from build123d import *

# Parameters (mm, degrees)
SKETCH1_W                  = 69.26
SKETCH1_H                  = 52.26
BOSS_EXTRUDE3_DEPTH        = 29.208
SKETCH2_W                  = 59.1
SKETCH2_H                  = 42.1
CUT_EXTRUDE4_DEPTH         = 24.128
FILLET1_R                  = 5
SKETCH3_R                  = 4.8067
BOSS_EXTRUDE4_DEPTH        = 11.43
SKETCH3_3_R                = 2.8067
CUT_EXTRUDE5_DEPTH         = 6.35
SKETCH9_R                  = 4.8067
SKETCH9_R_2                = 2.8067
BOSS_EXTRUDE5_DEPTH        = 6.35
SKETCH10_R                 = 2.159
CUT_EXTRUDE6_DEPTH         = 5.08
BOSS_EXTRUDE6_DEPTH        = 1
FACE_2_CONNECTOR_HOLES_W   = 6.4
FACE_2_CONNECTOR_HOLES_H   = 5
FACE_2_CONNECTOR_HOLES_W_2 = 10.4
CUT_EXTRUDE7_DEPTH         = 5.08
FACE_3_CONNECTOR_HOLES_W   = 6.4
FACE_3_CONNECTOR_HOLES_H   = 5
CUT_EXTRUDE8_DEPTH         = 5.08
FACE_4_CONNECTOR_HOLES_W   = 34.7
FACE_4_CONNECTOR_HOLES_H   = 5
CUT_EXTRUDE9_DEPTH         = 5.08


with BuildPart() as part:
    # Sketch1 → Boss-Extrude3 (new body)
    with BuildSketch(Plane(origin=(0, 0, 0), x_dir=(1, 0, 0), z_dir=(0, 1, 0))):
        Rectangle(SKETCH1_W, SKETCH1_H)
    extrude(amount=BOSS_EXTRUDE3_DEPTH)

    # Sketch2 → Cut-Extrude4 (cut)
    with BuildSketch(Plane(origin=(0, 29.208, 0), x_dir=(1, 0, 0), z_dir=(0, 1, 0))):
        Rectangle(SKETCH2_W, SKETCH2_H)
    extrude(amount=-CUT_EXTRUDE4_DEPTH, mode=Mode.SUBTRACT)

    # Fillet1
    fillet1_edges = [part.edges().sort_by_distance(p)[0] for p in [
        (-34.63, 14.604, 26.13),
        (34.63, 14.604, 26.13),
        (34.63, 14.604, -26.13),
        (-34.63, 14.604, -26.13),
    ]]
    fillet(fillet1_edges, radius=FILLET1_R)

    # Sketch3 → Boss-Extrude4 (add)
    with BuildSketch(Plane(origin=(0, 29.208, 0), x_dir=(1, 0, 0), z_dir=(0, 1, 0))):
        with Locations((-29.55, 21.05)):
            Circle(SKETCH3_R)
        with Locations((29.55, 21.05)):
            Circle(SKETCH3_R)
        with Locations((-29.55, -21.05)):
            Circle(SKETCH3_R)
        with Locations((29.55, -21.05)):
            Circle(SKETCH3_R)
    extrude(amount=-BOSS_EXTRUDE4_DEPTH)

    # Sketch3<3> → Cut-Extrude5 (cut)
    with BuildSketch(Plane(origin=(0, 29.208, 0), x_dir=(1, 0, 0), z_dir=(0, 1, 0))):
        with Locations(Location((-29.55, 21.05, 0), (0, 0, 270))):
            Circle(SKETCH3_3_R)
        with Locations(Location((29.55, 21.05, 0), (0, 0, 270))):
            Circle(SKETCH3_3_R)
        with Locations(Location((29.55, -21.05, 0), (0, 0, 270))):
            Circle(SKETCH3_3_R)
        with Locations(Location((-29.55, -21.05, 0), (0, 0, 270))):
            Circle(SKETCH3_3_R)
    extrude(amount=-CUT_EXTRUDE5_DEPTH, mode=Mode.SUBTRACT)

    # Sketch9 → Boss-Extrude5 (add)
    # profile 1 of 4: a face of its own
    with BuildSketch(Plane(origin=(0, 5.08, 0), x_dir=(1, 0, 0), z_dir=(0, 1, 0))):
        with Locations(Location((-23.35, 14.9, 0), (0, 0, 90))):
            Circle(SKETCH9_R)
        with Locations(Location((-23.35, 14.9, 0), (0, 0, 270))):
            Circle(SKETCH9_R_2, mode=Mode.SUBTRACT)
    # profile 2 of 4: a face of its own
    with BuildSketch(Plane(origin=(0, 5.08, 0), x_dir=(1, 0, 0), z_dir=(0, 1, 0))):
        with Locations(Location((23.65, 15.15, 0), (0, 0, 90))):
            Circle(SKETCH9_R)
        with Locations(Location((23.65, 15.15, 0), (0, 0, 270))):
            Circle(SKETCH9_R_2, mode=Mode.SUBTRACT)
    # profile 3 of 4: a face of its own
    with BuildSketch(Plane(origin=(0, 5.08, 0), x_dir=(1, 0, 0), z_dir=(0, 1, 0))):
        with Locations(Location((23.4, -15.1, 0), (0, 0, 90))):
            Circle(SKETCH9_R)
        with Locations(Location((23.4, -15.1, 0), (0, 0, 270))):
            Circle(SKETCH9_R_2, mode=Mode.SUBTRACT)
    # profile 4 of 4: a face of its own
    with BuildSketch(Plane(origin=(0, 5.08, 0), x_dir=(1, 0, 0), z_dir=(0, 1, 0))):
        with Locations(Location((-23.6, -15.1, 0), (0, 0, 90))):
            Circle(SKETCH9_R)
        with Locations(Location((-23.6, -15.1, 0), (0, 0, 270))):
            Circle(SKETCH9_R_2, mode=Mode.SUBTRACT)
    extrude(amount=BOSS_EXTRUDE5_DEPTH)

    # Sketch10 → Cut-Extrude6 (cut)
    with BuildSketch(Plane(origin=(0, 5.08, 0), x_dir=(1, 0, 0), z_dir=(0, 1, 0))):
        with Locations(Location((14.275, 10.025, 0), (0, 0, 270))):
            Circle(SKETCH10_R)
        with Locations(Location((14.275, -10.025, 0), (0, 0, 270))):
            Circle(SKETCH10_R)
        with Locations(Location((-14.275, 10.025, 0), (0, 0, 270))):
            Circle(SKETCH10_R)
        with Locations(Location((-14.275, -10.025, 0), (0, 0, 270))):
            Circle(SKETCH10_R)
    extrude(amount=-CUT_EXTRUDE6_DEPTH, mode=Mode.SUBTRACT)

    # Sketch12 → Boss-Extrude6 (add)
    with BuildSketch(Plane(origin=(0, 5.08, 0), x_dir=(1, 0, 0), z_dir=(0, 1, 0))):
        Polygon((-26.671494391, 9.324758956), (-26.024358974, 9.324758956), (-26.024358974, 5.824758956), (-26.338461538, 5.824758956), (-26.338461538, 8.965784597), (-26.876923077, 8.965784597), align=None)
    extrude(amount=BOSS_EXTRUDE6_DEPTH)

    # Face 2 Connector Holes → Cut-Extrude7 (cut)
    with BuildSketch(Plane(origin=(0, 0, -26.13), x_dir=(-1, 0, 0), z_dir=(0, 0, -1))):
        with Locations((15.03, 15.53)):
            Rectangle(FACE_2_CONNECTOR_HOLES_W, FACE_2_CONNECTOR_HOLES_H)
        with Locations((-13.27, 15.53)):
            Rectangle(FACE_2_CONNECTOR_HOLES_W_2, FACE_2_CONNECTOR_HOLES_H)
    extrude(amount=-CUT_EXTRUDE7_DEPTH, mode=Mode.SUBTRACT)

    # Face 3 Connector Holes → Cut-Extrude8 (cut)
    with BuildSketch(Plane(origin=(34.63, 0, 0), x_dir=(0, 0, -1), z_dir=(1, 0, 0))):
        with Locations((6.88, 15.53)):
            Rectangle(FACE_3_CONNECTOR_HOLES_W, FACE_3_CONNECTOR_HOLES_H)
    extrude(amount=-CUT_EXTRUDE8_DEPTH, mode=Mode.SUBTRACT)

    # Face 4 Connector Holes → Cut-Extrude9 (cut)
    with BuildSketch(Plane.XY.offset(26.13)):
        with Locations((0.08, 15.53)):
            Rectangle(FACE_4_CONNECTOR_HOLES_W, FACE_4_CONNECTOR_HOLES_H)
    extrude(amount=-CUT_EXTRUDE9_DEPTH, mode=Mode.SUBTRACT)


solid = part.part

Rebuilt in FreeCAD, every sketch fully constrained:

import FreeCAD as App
import Part
import Sketcher

V = App.Vector
Q = App.Units.Quantity


def edges_at(feature, points):
    """Names of the edges that pass closest to the given points."""
    edges = feature.Shape.Edges
    near = lambda p: min(range(len(edges)), key=lambda i: edges[i].distToShape(Part.Vertex(*p))[0])
    return sorted({f"Edge{near(p) + 1}" for p in points})


def add_polygon(sketch, points):
    """Adds a closed chain of lines whose ends are joined by coincident constraints."""
    first, n = sketch.GeometryCount, len(points)
    for a, b in zip(points, points[1:] + points[:1]):
        sketch.addGeometry(Part.LineSegment(App.Vector(*a, 0), App.Vector(*b, 0)), False)
    for i in range(n):
        sketch.addConstraint(Sketcher.Constraint("Coincident", first + i, 2, first + (i + 1) % n, 1))

doc = App.newDocument("Part")
params = doc.addObject("Spreadsheet::Sheet", "Params")
for row, (alias, value) in enumerate([
    ("sketch1_width", "69.26 mm"),
    ("sketch1_height", "52.26 mm"),
    ("pad1_length", "29.208 mm"),
    ("sketch2_width", "59.1 mm"),
    ("sketch2_height", "42.1 mm"),
    ("pocket1_length", "24.128 mm"),
    ("fillet_radius", "5 mm"),
    ("pad2_length", "11.43 mm"),
    ("pocket2_length", "6.35 mm"),
    ("pad3_length", "6.35 mm"),
    ("pocket3_length", "5.08 mm"),
    ("sketch7_height", "3.5 mm"),
    ("pad4_length", "1 mm"),
    ("sketch8_height", "5 mm"),
    ("sketch8_width", "6.4 mm"),
    ("sketch8_width2", "10.4 mm"),
    ("pocket4_length", "5.08 mm"),
    ("sketch9_width", "5 mm"),
    ("sketch9_height", "6.4 mm"),
    ("pocket5_length", "5.08 mm"),
    ("sketch10_height", "5 mm"),
    ("sketch10_width", "34.7 mm"),
    ("pocket6_length", "5.08 mm"),
], start=1):
    params.set(f"A{row}", alias)
    params.set(f"B{row}", "=" + value)
    params.setAlias(f"B{row}", alias)

body = doc.addObject("PartDesign::Body", "Body")

# Sketch on XZ plane
sketch1 = body.newObject("Sketcher::SketchObject", "Sketch")
sketch1.AttachmentSupport = (doc.getObject("XZ_Plane"), [""])
sketch1.MapMode = "FlatFace"
add_polygon(sketch1, [(-35, -26), (-35, 26), (35, 26), (35, -26)])  # lines 0-3
sketch1.addConstraint([
    Sketcher.Constraint("Vertical", 0),
    Sketcher.Constraint("Horizontal", 1),
    Sketcher.Constraint("Vertical", 2),
    Sketcher.Constraint("Horizontal", 3),
    Sketcher.Constraint("Symmetric", 0, 2, 2, 2, -1, 1),
    Sketcher.Constraint("DistanceX", 1, 1, 1, 2, Q("69.26 mm")),
    Sketcher.Constraint("DistanceY", 0, 1, 0, 2, Q("52.26 mm")),
])
sketch1.setExpression("Constraints[9]", "Params.sketch1_width")
sketch1.setExpression("Constraints[10]", "Params.sketch1_height")
pad1 = body.newObject("PartDesign::Pad", "Pad")
pad1.Profile = sketch1
pad1.setExpression("Length", "Params.pad1_length")
pad1.Reversed = True

# Sketch on XZ plane
sketch2 = body.newObject("Sketcher::SketchObject", "Sketch001")
sketch2.AttachmentSupport = (doc.getObject("XZ_Plane"), [""])
sketch2.MapMode = "FlatFace"
sketch2.AttachmentOffset = App.Placement(V(0, 0, -29.208), App.Rotation())
add_polygon(sketch2, [(-30, -21), (-30, 21), (30, 21), (30, -21)])  # lines 0-3
sketch2.addConstraint([
    Sketcher.Constraint("Vertical", 0),
    Sketcher.Constraint("Horizontal", 1),
    Sketcher.Constraint("Vertical", 2),
    Sketcher.Constraint("Horizontal", 3),
    Sketcher.Constraint("Symmetric", 0, 2, 2, 2, -1, 1),
    Sketcher.Constraint("DistanceX", 1, 1, 1, 2, Q("59.1 mm")),
    Sketcher.Constraint("DistanceY", 0, 1, 0, 2, Q("42.1 mm")),
])
sketch2.setExpression("Constraints[9]", "Params.sketch2_width")
sketch2.setExpression("Constraints[10]", "Params.sketch2_height")
pocket1 = body.newObject("PartDesign::Pocket", "Pocket")
pocket1.Profile = sketch2
pocket1.setExpression("Length", "Params.pocket1_length")
pocket1.Reversed = True
doc.recompute()

fillet = body.newObject("PartDesign::Fillet", "Fillet")
fillet.Base = (pocket1, edges_at(pocket1, [
    (-34.63, 14.604, 26.13),
    (34.63, 14.604, 26.13),
    (34.63, 14.604, -26.13),
    (-34.63, 14.604, -26.13),
]))
fillet.setExpression("Radius", "Params.fillet_radius")

# Sketch on XZ plane
sketch3 = body.newObject("Sketcher::SketchObject", "Sketch002")
sketch3.AttachmentSupport = (doc.getObject("XZ_Plane"), [""])
sketch3.MapMode = "FlatFace"
sketch3.AttachmentOffset = App.Placement(V(0, 0, -29.208), App.Rotation())
sketch3.addGeometry([
    Part.Circle(V(-29.6, -21.1, 0), V(0, 0, 1), 4.8),
    Part.Circle(V(29.6, -21.1, 0), V(0, 0, 1), 4.8),
    Part.Circle(V(-29.6, 21.1, 0), V(0, 0, 1), 4.8),
    Part.Circle(V(29.6, 21.1, 0), V(0, 0, 1), 4.8),
], False)
sketch3.addConstraint([
    Sketcher.Constraint("Equal", 0, 1),
    Sketcher.Constraint("Equal", 1, 2),
    Sketcher.Constraint("Equal", 2, 3),
    Sketcher.Constraint("Symmetric", 1, 3, 2, 3, -1, 1),
    Sketcher.Constraint("Symmetric", 0, 3, 3, 3, -1, 1),
    Sketcher.Constraint("Symmetric", 0, 3, 1, 3, -2),
    Sketcher.Constraint("Diameter", 0, Q("9.6134 mm")),
    Sketcher.Constraint("DistanceX", 0, 3, 1, 3, Q("59.1 mm")),
    Sketcher.Constraint("DistanceY", 0, 3, 2, 3, Q("42.1 mm")),
])
pad2 = body.newObject("PartDesign::Pad", "Pad001")
pad2.Profile = sketch3
pad2.setExpression("Length", "Params.pad2_length")

# Sketch on XZ plane
sketch4 = body.newObject("Sketcher::SketchObject", "Sketch003")
sketch4.AttachmentSupport = (doc.getObject("XZ_Plane"), [""])
sketch4.MapMode = "FlatFace"
sketch4.AttachmentOffset = App.Placement(V(0, 0, -29.208), App.Rotation())
sketch4.addGeometry([
    Part.Circle(V(-29.6, -21.1, 0), V(0, 0, 1), 2.8),
    Part.Circle(V(29.6, -21.1, 0), V(0, 0, 1), 2.8),
    Part.Circle(V(29.6, 21.1, 0), V(0, 0, 1), 2.8),
    Part.Circle(V(-29.6, 21.1, 0), V(0, 0, 1), 2.8),
], False)
sketch4.addConstraint([
    Sketcher.Constraint("Equal", 0, 1),
    Sketcher.Constraint("Equal", 1, 2),
    Sketcher.Constraint("Equal", 2, 3),
    Sketcher.Constraint("Symmetric", 0, 3, 2, 3, -1, 1),
    Sketcher.Constraint("Symmetric", 1, 3, 3, 3, -1, 1),
    Sketcher.Constraint("Symmetric", 0, 3, 1, 3, -2),
    Sketcher.Constraint("Diameter", 0, Q("5.6134 mm")),
    Sketcher.Constraint("DistanceX", 0, 3, 1, 3, Q("59.1 mm")),
    Sketcher.Constraint("DistanceY", 1, 3, 2, 3, Q("42.1 mm")),
])
pocket2 = body.newObject("PartDesign::Pocket", "Pocket001")
pocket2.Profile = sketch4
pocket2.setExpression("Length", "Params.pocket2_length")
pocket2.Reversed = True

# Sketch on XZ plane
sketch5 = body.newObject("Sketcher::SketchObject", "Sketch004")
sketch5.AttachmentSupport = (doc.getObject("XZ_Plane"), [""])
sketch5.MapMode = "FlatFace"
sketch5.AttachmentOffset = App.Placement(V(0, 0, -5.08), App.Rotation())
sketch5.addGeometry([
    Part.Circle(V(-23.4, -14.9, 0), V(0, 0, 1), 4.8),  # 0
    Part.Circle(V(-23.4, -14.9, 0), V(0, 0, 1), 2.8),  # 1
    Part.Circle(V(23.6, -15.2, 0), V(0, 0, 1), 4.8),  # 2
    Part.Circle(V(23.6, -15.2, 0), V(0, 0, 1), 2.8),  # 3
    Part.Circle(V(23.4, 15.1, 0), V(0, 0, 1), 4.8),  # 4
    Part.Circle(V(23.4, 15.1, 0), V(0, 0, 1), 2.8),  # 5
    Part.Circle(V(-23.6, 15.1, 0), V(0, 0, 1), 4.8),  # 6
    Part.Circle(V(-23.6, 15.1, 0), V(0, 0, 1), 2.8),  # 7
], False)
sketch5.addConstraint([
    Sketcher.Constraint("Coincident", 1, 3, 0, 3),
    Sketcher.Constraint("Coincident", 3, 3, 2, 3),
    Sketcher.Constraint("Coincident", 5, 3, 4, 3),
    Sketcher.Constraint("Coincident", 7, 3, 6, 3),
    Sketcher.Constraint("Equal", 0, 2),
    Sketcher.Constraint("Equal", 1, 3),
    Sketcher.Constraint("Equal", 2, 4),
    Sketcher.Constraint("Equal", 3, 5),
    Sketcher.Constraint("Equal", 4, 6),
    Sketcher.Constraint("Equal", 5, 7),
    Sketcher.Constraint("Horizontal", 5, 3, 6, 3),
    Sketcher.Constraint("DistanceX", 0, 3, 2, 3, Q("47 mm")),
    Sketcher.Constraint("DistanceY", 0, 3, 4, 3, Q("30 mm")),
    Sketcher.Constraint("DistanceX", 6, 3, 4, 3, Q("47 mm")),
    Sketcher.Constraint("Diameter", 0, Q("9.6134 mm")),
    Sketcher.Constraint("Diameter", 1, Q("5.6134 mm")),
    Sketcher.Constraint("DistanceY", 0, 3, -1, 1, Q("14.9 mm")),
    Sketcher.Constraint("DistanceX", -1, 1, 4, 3, Q("23.4 mm")),
    Sketcher.Constraint("DistanceX", 0, 3, -1, 1, Q("23.35 mm")),
    Sketcher.Constraint("DistanceY", 2, 3, -1, 1, Q("15.15 mm")),
])
pad3 = body.newObject("PartDesign::Pad", "Pad002")
pad3.Profile = sketch5
pad3.setExpression("Length", "Params.pad3_length")
pad3.Reversed = True

# Sketch on XZ plane
sketch6 = body.newObject("Sketcher::SketchObject", "Sketch005")
sketch6.AttachmentSupport = (doc.getObject("XZ_Plane"), [""])
sketch6.MapMode = "FlatFace"
sketch6.AttachmentOffset = App.Placement(V(0, 0, -5.08), App.Rotation())
sketch6.addGeometry([
    Part.Circle(V(14.3, -10, 0), V(0, 0, 1), 2.2),
    Part.Circle(V(14.3, 10, 0), V(0, 0, 1), 2.2),
    Part.Circle(V(-14.3, -10, 0), V(0, 0, 1), 2.2),
    Part.Circle(V(-14.3, 10, 0), V(0, 0, 1), 2.2),
], False)
sketch6.addConstraint([
    Sketcher.Constraint("Equal", 0, 1),
    Sketcher.Constraint("Equal", 1, 2),
    Sketcher.Constraint("Equal", 2, 3),
    Sketcher.Constraint("Symmetric", 1, 3, 2, 3, -1, 1),
    Sketcher.Constraint("Symmetric", 0, 3, 3, 3, -1, 1),
    Sketcher.Constraint("Symmetric", 0, 3, 2, 3, -2),
    Sketcher.Constraint("Diameter", 0, Q("4.318 mm")),
    Sketcher.Constraint("DistanceY", 0, 3, 1, 3, Q("20.05 mm")),
    Sketcher.Constraint("DistanceX", 2, 3, 0, 3, Q("28.55 mm")),
])
pocket3 = body.newObject("PartDesign::Pocket", "Pocket002")
pocket3.Profile = sketch6
pocket3.setExpression("Length", "Params.pocket3_length")
pocket3.Reversed = True

# Sketch on XZ plane
sketch7 = body.newObject("Sketcher::SketchObject", "Sketch006")
sketch7.AttachmentSupport = (doc.getObject("XZ_Plane"), [""])
sketch7.MapMode = "FlatFace"
sketch7.AttachmentOffset = App.Placement(V(0, 0, -5.08), App.Rotation())
add_polygon(sketch7, [(-26.02, -9.32), (-26.67, -9.32), (-26.88, -8.97), (-26.34, -8.97), (-26.34, -5.82), (-26.02, -5.82)])  # lines 0-5
sketch7.addConstraint([
    Sketcher.Constraint("Horizontal", 0),
    Sketcher.Constraint("Horizontal", 2),
    Sketcher.Constraint("Vertical", 3),
    Sketcher.Constraint("Horizontal", 4),
    Sketcher.Constraint("Vertical", 5),
    Sketcher.Constraint("DistanceY", 5, 2, 5, 1, Q("3.5 mm")),
    Sketcher.Constraint("Distance", 1, Q("0.413598 mm")),
    Sketcher.Constraint("DistanceX", 2, 1, 2, 2, Q("0.538462 mm")),
    Sketcher.Constraint("DistanceX", 0, 2, 0, 1, Q("0.647135 mm")),
    Sketcher.Constraint("DistanceX", 4, 1, 4, 2, Q("0.314103 mm")),
    Sketcher.Constraint("DistanceY", 0, 2, -1, 1, Q("9.324759 mm")),
    Sketcher.Constraint("DistanceX", 2, 2, -1, 1, Q("26.338462 mm")),
])
sketch7.setExpression("Constraints[11]", "Params.sketch7_height")
pad4 = body.newObject("PartDesign::Pad", "Pad003")
pad4.Profile = sketch7
pad4.setExpression("Length", "Params.pad4_length")
pad4.Reversed = True

# Sketch on XY plane
sketch8 = body.newObject("Sketcher::SketchObject", "Sketch007")
sketch8.AttachmentSupport = (doc.getObject("XY_Plane"), [""])
sketch8.MapMode = "FlatFace"
sketch8.AttachmentOffset = App.Placement(V(0, 0, -26.13), App.Rotation())
add_polygon(sketch8, [(-12, 18), (-12, 13), (-18, 13), (-18, 18)])  # lines 0-3
add_polygon(sketch8, [(18, 18), (18, 13), (8, 13), (8, 18)])  # lines 4-7
sketch8.addConstraint([
    Sketcher.Constraint("Vertical", 0),
    Sketcher.Constraint("Horizontal", 1),
    Sketcher.Constraint("Vertical", 2),
    Sketcher.Constraint("Horizontal", 3),
    Sketcher.Constraint("Vertical", 4),
    Sketcher.Constraint("Horizontal", 5),
    Sketcher.Constraint("Vertical", 6),
    Sketcher.Constraint("Horizontal", 7),
    Sketcher.Constraint("Horizontal", 1, 2, 4, 2),
    Sketcher.Constraint("Horizontal", 3, 2, 6, 2),
    Sketcher.Constraint("DistanceY", 0, 2, 0, 1, Q("5 mm")),
    Sketcher.Constraint("DistanceX", 1, 2, 1, 1, Q("6.4 mm")),
    Sketcher.Constraint("DistanceX", 5, 2, 5, 1, Q("10.4 mm")),
    Sketcher.Constraint("DistanceX", 0, 2, 4, 2, Q("30.3 mm")),
    Sketcher.Constraint("DistanceX", 0, 2, -1, 1, Q("11.83 mm")),
    Sketcher.Constraint("DistanceY", -1, 1, 0, 2, Q("13.03 mm")),
])
sketch8.setExpression("Constraints[18]", "Params.sketch8_height")
sketch8.setExpression("Constraints[19]", "Params.sketch8_width")
sketch8.setExpression("Constraints[20]", "Params.sketch8_width2")
pocket4 = body.newObject("PartDesign::Pocket", "Pocket003")
pocket4.Profile = sketch8
pocket4.setExpression("Length", "Params.pocket4_length")
pocket4.Reversed = True

# Sketch on YZ plane
sketch9 = body.newObject("Sketcher::SketchObject", "Sketch008")
sketch9.AttachmentSupport = (doc.getObject("YZ_Plane"), [""])
sketch9.MapMode = "FlatFace"
sketch9.AttachmentOffset = App.Placement(V(0, 0, 34.63), App.Rotation())
add_polygon(sketch9, [(18, -4), (13, -4), (13, -10), (18, -10)])  # lines 0-3
sketch9.addConstraint([
    Sketcher.Constraint("Horizontal", 0),
    Sketcher.Constraint("Vertical", 1),
    Sketcher.Constraint("Horizontal", 2),
    Sketcher.Constraint("Vertical", 3),
    Sketcher.Constraint("DistanceX", 0, 2, 0, 1, Q("5 mm")),
    Sketcher.Constraint("DistanceY", 1, 2, 1, 1, Q("6.4 mm")),
    Sketcher.Constraint("DistanceX", -1, 1, 0, 2, Q("13.03 mm")),
    Sketcher.Constraint("DistanceY", 0, 2, -1, 1, Q("3.68 mm")),
])
sketch9.setExpression("Constraints[8]", "Params.sketch9_width")
sketch9.setExpression("Constraints[9]", "Params.sketch9_height")
pocket5 = body.newObject("PartDesign::Pocket", "Pocket004")
pocket5.Profile = sketch9
pocket5.setExpression("Length", "Params.pocket5_length")

# Sketch on XY plane
sketch10 = body.newObject("Sketcher::SketchObject", "Sketch009")
sketch10.AttachmentSupport = (doc.getObject("XY_Plane"), [""])
sketch10.MapMode = "FlatFace"
sketch10.AttachmentOffset = App.Placement(V(0, 0, 26.13), App.Rotation())
add_polygon(sketch10, [(-17, 18), (-17, 13), (17, 13), (17, 18)])  # lines 0-3
sketch10.addConstraint([
    Sketcher.Constraint("Vertical", 0),
    Sketcher.Constraint("Horizontal", 1),
    Sketcher.Constraint("Vertical", 2),
    Sketcher.Constraint("Horizontal", 3),
    Sketcher.Constraint("DistanceY", 0, 2, 0, 1, Q("5 mm")),
    Sketcher.Constraint("DistanceX", 1, 1, 1, 2, Q("34.7 mm")),
    Sketcher.Constraint("DistanceX", 0, 2, -1, 1, Q("17.27 mm")),
    Sketcher.Constraint("DistanceY", -1, 1, 0, 2, Q("13.03 mm")),
])
sketch10.setExpression("Constraints[8]", "Params.sketch10_height")
sketch10.setExpression("Constraints[9]", "Params.sketch10_width")
pocket6 = body.newObject("PartDesign::Pocket", "Pocket005")
pocket6.Profile = sketch10
pocket6.setExpression("Length", "Params.pocket6_length")

doc.recompute()
